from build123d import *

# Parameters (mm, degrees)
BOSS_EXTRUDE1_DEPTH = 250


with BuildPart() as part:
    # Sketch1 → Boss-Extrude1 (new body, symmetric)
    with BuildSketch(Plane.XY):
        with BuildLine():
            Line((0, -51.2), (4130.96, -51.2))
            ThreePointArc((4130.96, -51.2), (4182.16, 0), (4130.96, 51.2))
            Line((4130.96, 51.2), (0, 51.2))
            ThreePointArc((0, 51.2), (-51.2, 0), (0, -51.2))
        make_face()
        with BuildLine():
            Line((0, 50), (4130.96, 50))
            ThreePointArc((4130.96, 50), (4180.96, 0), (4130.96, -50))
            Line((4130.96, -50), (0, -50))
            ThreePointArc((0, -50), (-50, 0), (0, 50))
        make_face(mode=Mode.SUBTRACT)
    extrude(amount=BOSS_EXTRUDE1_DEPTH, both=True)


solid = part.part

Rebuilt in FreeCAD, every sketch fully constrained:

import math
import FreeCAD as App
import Part
import Sketcher
Q = App.Units.Quantity

doc = App.newDocument("Part")
params = doc.addObject("Spreadsheet::Sheet", "Params")
for row, (alias, value) in enumerate([
    ("sketch1_radius", "50 mm"),
    ("sketch1_radius2", "51.2 mm"),
    ("sketch1_width", "4130.96 mm"),
    ("pad1_length", "500 mm"),
], start=1):
    params.set(f"A{row}", alias)
    params.set(f"B{row}", "=" + value)
    params.setAlias(f"B{row}", alias)

body = doc.addObject("PartDesign::Body", "Body")

# Sketch on XY plane
sketch1 = body.newObject("Sketcher::SketchObject", "Sketch")
sketch1.AttachmentSupport = (doc.getObject("XY_Plane"), [""])
sketch1.MapMode = "FlatFace"
sketch1.addGeometry([
    Part.LineSegment(App.Vector(0, -51, 0), App.Vector(4131, -51, 0)),  # 0
    Part.ArcOfCircle(Part.Circle(App.Vector(4131, 0, 0), App.Vector(0, 0, 1), 51), math.radians(-90), math.radians(90)),  # 1
    Part.LineSegment(App.Vector(4131, 51, 0), App.Vector(0, 51, 0)),  # 2
    Part.ArcOfCircle(Part.Circle(App.Vector(0, 0, 0), App.Vector(0, 0, 1), 51), math.radians(90), math.radians(270)),  # 3
    Part.ArcOfCircle(Part.Circle(App.Vector(0, 0, 0), App.Vector(0, 0, 1), 50), math.radians(90), math.radians(270)),  # 4
    Part.LineSegment(App.Vector(0, 50, 0), App.Vector(4131, 50, 0)),  # 5
    Part.ArcOfCircle(Part.Circle(App.Vector(4131, 0, 0), App.Vector(0, 0, 1), 50), math.radians(-90), math.radians(90)),  # 6
    Part.LineSegment(App.Vector(4131, -50, 0), App.Vector(0, -50, 0)),  # 7
], False)
sketch1.addConstraint([
    Sketcher.Constraint("Tangent", 0, 2, 1, 1),
    Sketcher.Constraint("Tangent", 1, 2, 2, 1),
    Sketcher.Constraint("Tangent", 2, 2, 3, 1),
    Sketcher.Constraint("Tangent", 3, 2, 0, 1),
    Sketcher.Constraint("Tangent", 4, 1, 5, 1),
    Sketcher.Constraint("Tangent", 5, 2, 6, 2),
    Sketcher.Constraint("Tangent", 6, 1, 7, 1),
    Sketcher.Constraint("Tangent", 7, 2, 4, 2),
    Sketcher.Constraint("Horizontal", 0),
    Sketcher.Constraint("Horizontal", 2),
    Sketcher.Constraint("Horizontal", 5),
    Sketcher.Constraint("Horizontal", 7),
    Sketcher.Constraint("Coincident", 3, 3, -1, 1),
    Sketcher.Constraint("Coincident", 4, 3, -1, 1),
    Sketcher.Constraint("Vertical", 6, 3, 0, 2),
    Sketcher.Constraint("Radius", 4, Q("50 mm")),
    Sketcher.Constraint("Radius", 1, Q("51.2 mm")),
    Sketcher.Constraint("DistanceX", 0, 1, 0, 2, Q("4130.96 mm")),
])
sketch1.setExpression("Constraints[15]", "Params.sketch1_radius")
sketch1.setExpression("Constraints[16]", "Params.sketch1_radius2")
sketch1.setExpression("Constraints[17]", "Params.sketch1_width")
pad1 = body.newObject("PartDesign::Pad", "Pad")
pad1.Profile = sketch1
pad1.setExpression("Length", "Params.pad1_length")
pad1.Midplane = True

doc.recompute()
